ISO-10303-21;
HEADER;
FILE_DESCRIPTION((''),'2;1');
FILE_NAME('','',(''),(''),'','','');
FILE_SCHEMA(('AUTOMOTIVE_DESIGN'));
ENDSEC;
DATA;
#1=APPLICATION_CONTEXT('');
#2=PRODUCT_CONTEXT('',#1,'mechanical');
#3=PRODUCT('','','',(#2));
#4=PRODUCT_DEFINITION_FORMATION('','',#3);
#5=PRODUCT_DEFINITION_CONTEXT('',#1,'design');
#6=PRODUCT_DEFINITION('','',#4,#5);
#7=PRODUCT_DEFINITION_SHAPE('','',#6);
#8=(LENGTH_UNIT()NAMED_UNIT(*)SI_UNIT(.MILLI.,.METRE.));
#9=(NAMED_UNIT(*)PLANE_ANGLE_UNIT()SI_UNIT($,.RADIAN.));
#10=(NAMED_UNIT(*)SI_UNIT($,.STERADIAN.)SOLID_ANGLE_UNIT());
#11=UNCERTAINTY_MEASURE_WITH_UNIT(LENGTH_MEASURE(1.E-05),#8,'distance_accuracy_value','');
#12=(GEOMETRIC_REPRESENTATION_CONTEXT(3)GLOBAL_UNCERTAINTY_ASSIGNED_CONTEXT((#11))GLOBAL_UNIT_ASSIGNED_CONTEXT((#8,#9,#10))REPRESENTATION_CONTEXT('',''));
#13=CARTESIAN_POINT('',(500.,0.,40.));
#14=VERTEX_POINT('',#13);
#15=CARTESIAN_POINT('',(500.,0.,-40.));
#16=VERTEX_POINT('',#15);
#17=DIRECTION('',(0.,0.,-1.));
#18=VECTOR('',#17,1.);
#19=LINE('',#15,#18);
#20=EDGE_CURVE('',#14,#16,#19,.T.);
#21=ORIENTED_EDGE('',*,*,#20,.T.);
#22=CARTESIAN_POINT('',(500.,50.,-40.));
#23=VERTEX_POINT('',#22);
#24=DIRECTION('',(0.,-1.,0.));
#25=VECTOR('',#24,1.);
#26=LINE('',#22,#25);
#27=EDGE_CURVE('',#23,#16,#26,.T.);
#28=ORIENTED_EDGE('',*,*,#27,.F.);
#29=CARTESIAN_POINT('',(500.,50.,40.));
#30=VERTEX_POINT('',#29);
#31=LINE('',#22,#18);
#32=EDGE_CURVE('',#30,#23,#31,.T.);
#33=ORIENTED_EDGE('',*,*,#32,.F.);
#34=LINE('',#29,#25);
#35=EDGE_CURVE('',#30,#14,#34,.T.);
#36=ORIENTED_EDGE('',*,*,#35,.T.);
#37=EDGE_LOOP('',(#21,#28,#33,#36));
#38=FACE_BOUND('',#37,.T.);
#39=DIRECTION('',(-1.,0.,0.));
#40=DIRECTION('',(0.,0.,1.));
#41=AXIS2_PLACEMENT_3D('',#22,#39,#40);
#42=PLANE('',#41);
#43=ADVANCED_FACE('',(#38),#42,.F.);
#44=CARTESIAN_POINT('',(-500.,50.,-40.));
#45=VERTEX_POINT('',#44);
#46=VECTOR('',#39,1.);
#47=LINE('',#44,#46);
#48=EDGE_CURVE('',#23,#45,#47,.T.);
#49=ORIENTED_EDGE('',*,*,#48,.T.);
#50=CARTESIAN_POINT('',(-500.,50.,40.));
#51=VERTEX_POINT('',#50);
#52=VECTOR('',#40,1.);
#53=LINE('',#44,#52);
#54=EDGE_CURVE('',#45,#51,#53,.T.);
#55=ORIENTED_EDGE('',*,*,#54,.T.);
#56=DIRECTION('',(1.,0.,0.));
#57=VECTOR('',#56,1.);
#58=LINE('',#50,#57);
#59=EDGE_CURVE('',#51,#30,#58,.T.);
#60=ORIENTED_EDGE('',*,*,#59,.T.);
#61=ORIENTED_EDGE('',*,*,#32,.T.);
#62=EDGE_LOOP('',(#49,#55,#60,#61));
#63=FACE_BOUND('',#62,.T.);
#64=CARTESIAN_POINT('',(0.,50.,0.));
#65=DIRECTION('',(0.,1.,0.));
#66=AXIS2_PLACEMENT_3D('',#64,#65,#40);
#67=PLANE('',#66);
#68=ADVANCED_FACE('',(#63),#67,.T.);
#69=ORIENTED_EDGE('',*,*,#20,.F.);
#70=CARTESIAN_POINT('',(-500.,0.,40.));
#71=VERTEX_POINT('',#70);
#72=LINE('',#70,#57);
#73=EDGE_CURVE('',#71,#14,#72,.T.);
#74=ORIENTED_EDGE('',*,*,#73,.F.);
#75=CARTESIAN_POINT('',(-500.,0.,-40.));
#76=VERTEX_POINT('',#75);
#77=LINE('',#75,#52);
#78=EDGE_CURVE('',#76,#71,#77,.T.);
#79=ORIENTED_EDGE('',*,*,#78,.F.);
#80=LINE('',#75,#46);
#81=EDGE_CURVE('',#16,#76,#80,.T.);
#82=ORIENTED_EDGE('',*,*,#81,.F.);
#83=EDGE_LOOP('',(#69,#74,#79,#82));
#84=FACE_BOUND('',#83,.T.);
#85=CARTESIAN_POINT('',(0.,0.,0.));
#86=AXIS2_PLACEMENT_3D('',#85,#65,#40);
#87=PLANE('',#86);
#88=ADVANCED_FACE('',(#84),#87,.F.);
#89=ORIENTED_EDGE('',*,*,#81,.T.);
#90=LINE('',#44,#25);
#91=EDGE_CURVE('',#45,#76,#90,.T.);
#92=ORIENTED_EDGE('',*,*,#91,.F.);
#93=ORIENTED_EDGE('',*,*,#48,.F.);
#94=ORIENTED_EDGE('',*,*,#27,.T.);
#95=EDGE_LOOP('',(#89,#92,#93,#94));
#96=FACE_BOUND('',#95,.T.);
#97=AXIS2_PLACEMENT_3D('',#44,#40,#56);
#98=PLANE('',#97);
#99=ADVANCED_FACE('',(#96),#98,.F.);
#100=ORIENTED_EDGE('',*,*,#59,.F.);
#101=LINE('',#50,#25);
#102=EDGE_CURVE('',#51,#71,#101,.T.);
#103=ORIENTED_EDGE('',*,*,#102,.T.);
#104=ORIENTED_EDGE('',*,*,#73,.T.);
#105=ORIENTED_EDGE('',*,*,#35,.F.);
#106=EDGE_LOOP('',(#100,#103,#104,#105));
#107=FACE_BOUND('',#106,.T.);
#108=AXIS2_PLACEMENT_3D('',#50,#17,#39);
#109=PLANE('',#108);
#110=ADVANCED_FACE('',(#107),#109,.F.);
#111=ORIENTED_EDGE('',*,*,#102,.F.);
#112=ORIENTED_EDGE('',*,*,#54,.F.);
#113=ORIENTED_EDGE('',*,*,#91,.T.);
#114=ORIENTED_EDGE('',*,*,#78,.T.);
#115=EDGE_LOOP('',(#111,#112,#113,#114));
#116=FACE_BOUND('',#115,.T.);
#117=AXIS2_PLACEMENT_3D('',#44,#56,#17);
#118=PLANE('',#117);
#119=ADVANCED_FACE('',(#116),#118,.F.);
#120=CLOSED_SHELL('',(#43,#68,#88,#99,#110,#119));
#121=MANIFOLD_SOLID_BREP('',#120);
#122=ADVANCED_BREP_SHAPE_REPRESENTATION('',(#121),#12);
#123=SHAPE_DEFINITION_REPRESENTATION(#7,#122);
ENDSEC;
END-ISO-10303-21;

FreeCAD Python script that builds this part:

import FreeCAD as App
import Part
import Sketcher
from FreeCAD import Vector
Q = App.Units.Quantity


def add_polygon(sketch, points):
    """Adds a closed chain of lines whose ends are joined by coincident constraints."""
    first, n = sketch.GeometryCount, len(points)
    for a, b in zip(points, points[1:] + points[:1]):
        sketch.addGeometry(Part.LineSegment(App.Vector(*a, 0), App.Vector(*b, 0)), False)
    for i in range(n):
        sketch.addConstraint(Sketcher.Constraint("Coincident", first + i, 2, first + (i + 1) % n, 1))

doc = App.newDocument("Part")
body = doc.addObject("PartDesign::Body", "Body")

sketch1 = doc.addObject("Sketcher::SketchObject", "Sketch")
body.addObject(sketch1)
sketch1.AttachmentSupport = (doc.XZ_Plane, [""])
sketch1.MapMode = "FlatFace"
add_polygon(sketch1, [(-500, -40), (-500, 40), (500, 40), (500, -40)])
sketch1.addConstraint([
    Sketcher.Constraint("Vertical", 0),
    Sketcher.Constraint("Horizontal", 1),
    Sketcher.Constraint("Vertical", 2),
    Sketcher.Constraint("Horizontal", 3),
    Sketcher.Constraint("Symmetric", 0, 2, 2, 2, -1, 1),
    Sketcher.Constraint("DistanceX", 1, 1, 1, 2, Q("1000 mm")),
    Sketcher.Constraint("DistanceY", 0, 1, 0, 2, Q("80 mm")),
])
pad1 = doc.addObject("PartDesign::Pad", "Pad")
body.addObject(pad1)
pad1.Profile = sketch1
pad1.Length = 50
pad1.Reversed = True

doc.recompute()
